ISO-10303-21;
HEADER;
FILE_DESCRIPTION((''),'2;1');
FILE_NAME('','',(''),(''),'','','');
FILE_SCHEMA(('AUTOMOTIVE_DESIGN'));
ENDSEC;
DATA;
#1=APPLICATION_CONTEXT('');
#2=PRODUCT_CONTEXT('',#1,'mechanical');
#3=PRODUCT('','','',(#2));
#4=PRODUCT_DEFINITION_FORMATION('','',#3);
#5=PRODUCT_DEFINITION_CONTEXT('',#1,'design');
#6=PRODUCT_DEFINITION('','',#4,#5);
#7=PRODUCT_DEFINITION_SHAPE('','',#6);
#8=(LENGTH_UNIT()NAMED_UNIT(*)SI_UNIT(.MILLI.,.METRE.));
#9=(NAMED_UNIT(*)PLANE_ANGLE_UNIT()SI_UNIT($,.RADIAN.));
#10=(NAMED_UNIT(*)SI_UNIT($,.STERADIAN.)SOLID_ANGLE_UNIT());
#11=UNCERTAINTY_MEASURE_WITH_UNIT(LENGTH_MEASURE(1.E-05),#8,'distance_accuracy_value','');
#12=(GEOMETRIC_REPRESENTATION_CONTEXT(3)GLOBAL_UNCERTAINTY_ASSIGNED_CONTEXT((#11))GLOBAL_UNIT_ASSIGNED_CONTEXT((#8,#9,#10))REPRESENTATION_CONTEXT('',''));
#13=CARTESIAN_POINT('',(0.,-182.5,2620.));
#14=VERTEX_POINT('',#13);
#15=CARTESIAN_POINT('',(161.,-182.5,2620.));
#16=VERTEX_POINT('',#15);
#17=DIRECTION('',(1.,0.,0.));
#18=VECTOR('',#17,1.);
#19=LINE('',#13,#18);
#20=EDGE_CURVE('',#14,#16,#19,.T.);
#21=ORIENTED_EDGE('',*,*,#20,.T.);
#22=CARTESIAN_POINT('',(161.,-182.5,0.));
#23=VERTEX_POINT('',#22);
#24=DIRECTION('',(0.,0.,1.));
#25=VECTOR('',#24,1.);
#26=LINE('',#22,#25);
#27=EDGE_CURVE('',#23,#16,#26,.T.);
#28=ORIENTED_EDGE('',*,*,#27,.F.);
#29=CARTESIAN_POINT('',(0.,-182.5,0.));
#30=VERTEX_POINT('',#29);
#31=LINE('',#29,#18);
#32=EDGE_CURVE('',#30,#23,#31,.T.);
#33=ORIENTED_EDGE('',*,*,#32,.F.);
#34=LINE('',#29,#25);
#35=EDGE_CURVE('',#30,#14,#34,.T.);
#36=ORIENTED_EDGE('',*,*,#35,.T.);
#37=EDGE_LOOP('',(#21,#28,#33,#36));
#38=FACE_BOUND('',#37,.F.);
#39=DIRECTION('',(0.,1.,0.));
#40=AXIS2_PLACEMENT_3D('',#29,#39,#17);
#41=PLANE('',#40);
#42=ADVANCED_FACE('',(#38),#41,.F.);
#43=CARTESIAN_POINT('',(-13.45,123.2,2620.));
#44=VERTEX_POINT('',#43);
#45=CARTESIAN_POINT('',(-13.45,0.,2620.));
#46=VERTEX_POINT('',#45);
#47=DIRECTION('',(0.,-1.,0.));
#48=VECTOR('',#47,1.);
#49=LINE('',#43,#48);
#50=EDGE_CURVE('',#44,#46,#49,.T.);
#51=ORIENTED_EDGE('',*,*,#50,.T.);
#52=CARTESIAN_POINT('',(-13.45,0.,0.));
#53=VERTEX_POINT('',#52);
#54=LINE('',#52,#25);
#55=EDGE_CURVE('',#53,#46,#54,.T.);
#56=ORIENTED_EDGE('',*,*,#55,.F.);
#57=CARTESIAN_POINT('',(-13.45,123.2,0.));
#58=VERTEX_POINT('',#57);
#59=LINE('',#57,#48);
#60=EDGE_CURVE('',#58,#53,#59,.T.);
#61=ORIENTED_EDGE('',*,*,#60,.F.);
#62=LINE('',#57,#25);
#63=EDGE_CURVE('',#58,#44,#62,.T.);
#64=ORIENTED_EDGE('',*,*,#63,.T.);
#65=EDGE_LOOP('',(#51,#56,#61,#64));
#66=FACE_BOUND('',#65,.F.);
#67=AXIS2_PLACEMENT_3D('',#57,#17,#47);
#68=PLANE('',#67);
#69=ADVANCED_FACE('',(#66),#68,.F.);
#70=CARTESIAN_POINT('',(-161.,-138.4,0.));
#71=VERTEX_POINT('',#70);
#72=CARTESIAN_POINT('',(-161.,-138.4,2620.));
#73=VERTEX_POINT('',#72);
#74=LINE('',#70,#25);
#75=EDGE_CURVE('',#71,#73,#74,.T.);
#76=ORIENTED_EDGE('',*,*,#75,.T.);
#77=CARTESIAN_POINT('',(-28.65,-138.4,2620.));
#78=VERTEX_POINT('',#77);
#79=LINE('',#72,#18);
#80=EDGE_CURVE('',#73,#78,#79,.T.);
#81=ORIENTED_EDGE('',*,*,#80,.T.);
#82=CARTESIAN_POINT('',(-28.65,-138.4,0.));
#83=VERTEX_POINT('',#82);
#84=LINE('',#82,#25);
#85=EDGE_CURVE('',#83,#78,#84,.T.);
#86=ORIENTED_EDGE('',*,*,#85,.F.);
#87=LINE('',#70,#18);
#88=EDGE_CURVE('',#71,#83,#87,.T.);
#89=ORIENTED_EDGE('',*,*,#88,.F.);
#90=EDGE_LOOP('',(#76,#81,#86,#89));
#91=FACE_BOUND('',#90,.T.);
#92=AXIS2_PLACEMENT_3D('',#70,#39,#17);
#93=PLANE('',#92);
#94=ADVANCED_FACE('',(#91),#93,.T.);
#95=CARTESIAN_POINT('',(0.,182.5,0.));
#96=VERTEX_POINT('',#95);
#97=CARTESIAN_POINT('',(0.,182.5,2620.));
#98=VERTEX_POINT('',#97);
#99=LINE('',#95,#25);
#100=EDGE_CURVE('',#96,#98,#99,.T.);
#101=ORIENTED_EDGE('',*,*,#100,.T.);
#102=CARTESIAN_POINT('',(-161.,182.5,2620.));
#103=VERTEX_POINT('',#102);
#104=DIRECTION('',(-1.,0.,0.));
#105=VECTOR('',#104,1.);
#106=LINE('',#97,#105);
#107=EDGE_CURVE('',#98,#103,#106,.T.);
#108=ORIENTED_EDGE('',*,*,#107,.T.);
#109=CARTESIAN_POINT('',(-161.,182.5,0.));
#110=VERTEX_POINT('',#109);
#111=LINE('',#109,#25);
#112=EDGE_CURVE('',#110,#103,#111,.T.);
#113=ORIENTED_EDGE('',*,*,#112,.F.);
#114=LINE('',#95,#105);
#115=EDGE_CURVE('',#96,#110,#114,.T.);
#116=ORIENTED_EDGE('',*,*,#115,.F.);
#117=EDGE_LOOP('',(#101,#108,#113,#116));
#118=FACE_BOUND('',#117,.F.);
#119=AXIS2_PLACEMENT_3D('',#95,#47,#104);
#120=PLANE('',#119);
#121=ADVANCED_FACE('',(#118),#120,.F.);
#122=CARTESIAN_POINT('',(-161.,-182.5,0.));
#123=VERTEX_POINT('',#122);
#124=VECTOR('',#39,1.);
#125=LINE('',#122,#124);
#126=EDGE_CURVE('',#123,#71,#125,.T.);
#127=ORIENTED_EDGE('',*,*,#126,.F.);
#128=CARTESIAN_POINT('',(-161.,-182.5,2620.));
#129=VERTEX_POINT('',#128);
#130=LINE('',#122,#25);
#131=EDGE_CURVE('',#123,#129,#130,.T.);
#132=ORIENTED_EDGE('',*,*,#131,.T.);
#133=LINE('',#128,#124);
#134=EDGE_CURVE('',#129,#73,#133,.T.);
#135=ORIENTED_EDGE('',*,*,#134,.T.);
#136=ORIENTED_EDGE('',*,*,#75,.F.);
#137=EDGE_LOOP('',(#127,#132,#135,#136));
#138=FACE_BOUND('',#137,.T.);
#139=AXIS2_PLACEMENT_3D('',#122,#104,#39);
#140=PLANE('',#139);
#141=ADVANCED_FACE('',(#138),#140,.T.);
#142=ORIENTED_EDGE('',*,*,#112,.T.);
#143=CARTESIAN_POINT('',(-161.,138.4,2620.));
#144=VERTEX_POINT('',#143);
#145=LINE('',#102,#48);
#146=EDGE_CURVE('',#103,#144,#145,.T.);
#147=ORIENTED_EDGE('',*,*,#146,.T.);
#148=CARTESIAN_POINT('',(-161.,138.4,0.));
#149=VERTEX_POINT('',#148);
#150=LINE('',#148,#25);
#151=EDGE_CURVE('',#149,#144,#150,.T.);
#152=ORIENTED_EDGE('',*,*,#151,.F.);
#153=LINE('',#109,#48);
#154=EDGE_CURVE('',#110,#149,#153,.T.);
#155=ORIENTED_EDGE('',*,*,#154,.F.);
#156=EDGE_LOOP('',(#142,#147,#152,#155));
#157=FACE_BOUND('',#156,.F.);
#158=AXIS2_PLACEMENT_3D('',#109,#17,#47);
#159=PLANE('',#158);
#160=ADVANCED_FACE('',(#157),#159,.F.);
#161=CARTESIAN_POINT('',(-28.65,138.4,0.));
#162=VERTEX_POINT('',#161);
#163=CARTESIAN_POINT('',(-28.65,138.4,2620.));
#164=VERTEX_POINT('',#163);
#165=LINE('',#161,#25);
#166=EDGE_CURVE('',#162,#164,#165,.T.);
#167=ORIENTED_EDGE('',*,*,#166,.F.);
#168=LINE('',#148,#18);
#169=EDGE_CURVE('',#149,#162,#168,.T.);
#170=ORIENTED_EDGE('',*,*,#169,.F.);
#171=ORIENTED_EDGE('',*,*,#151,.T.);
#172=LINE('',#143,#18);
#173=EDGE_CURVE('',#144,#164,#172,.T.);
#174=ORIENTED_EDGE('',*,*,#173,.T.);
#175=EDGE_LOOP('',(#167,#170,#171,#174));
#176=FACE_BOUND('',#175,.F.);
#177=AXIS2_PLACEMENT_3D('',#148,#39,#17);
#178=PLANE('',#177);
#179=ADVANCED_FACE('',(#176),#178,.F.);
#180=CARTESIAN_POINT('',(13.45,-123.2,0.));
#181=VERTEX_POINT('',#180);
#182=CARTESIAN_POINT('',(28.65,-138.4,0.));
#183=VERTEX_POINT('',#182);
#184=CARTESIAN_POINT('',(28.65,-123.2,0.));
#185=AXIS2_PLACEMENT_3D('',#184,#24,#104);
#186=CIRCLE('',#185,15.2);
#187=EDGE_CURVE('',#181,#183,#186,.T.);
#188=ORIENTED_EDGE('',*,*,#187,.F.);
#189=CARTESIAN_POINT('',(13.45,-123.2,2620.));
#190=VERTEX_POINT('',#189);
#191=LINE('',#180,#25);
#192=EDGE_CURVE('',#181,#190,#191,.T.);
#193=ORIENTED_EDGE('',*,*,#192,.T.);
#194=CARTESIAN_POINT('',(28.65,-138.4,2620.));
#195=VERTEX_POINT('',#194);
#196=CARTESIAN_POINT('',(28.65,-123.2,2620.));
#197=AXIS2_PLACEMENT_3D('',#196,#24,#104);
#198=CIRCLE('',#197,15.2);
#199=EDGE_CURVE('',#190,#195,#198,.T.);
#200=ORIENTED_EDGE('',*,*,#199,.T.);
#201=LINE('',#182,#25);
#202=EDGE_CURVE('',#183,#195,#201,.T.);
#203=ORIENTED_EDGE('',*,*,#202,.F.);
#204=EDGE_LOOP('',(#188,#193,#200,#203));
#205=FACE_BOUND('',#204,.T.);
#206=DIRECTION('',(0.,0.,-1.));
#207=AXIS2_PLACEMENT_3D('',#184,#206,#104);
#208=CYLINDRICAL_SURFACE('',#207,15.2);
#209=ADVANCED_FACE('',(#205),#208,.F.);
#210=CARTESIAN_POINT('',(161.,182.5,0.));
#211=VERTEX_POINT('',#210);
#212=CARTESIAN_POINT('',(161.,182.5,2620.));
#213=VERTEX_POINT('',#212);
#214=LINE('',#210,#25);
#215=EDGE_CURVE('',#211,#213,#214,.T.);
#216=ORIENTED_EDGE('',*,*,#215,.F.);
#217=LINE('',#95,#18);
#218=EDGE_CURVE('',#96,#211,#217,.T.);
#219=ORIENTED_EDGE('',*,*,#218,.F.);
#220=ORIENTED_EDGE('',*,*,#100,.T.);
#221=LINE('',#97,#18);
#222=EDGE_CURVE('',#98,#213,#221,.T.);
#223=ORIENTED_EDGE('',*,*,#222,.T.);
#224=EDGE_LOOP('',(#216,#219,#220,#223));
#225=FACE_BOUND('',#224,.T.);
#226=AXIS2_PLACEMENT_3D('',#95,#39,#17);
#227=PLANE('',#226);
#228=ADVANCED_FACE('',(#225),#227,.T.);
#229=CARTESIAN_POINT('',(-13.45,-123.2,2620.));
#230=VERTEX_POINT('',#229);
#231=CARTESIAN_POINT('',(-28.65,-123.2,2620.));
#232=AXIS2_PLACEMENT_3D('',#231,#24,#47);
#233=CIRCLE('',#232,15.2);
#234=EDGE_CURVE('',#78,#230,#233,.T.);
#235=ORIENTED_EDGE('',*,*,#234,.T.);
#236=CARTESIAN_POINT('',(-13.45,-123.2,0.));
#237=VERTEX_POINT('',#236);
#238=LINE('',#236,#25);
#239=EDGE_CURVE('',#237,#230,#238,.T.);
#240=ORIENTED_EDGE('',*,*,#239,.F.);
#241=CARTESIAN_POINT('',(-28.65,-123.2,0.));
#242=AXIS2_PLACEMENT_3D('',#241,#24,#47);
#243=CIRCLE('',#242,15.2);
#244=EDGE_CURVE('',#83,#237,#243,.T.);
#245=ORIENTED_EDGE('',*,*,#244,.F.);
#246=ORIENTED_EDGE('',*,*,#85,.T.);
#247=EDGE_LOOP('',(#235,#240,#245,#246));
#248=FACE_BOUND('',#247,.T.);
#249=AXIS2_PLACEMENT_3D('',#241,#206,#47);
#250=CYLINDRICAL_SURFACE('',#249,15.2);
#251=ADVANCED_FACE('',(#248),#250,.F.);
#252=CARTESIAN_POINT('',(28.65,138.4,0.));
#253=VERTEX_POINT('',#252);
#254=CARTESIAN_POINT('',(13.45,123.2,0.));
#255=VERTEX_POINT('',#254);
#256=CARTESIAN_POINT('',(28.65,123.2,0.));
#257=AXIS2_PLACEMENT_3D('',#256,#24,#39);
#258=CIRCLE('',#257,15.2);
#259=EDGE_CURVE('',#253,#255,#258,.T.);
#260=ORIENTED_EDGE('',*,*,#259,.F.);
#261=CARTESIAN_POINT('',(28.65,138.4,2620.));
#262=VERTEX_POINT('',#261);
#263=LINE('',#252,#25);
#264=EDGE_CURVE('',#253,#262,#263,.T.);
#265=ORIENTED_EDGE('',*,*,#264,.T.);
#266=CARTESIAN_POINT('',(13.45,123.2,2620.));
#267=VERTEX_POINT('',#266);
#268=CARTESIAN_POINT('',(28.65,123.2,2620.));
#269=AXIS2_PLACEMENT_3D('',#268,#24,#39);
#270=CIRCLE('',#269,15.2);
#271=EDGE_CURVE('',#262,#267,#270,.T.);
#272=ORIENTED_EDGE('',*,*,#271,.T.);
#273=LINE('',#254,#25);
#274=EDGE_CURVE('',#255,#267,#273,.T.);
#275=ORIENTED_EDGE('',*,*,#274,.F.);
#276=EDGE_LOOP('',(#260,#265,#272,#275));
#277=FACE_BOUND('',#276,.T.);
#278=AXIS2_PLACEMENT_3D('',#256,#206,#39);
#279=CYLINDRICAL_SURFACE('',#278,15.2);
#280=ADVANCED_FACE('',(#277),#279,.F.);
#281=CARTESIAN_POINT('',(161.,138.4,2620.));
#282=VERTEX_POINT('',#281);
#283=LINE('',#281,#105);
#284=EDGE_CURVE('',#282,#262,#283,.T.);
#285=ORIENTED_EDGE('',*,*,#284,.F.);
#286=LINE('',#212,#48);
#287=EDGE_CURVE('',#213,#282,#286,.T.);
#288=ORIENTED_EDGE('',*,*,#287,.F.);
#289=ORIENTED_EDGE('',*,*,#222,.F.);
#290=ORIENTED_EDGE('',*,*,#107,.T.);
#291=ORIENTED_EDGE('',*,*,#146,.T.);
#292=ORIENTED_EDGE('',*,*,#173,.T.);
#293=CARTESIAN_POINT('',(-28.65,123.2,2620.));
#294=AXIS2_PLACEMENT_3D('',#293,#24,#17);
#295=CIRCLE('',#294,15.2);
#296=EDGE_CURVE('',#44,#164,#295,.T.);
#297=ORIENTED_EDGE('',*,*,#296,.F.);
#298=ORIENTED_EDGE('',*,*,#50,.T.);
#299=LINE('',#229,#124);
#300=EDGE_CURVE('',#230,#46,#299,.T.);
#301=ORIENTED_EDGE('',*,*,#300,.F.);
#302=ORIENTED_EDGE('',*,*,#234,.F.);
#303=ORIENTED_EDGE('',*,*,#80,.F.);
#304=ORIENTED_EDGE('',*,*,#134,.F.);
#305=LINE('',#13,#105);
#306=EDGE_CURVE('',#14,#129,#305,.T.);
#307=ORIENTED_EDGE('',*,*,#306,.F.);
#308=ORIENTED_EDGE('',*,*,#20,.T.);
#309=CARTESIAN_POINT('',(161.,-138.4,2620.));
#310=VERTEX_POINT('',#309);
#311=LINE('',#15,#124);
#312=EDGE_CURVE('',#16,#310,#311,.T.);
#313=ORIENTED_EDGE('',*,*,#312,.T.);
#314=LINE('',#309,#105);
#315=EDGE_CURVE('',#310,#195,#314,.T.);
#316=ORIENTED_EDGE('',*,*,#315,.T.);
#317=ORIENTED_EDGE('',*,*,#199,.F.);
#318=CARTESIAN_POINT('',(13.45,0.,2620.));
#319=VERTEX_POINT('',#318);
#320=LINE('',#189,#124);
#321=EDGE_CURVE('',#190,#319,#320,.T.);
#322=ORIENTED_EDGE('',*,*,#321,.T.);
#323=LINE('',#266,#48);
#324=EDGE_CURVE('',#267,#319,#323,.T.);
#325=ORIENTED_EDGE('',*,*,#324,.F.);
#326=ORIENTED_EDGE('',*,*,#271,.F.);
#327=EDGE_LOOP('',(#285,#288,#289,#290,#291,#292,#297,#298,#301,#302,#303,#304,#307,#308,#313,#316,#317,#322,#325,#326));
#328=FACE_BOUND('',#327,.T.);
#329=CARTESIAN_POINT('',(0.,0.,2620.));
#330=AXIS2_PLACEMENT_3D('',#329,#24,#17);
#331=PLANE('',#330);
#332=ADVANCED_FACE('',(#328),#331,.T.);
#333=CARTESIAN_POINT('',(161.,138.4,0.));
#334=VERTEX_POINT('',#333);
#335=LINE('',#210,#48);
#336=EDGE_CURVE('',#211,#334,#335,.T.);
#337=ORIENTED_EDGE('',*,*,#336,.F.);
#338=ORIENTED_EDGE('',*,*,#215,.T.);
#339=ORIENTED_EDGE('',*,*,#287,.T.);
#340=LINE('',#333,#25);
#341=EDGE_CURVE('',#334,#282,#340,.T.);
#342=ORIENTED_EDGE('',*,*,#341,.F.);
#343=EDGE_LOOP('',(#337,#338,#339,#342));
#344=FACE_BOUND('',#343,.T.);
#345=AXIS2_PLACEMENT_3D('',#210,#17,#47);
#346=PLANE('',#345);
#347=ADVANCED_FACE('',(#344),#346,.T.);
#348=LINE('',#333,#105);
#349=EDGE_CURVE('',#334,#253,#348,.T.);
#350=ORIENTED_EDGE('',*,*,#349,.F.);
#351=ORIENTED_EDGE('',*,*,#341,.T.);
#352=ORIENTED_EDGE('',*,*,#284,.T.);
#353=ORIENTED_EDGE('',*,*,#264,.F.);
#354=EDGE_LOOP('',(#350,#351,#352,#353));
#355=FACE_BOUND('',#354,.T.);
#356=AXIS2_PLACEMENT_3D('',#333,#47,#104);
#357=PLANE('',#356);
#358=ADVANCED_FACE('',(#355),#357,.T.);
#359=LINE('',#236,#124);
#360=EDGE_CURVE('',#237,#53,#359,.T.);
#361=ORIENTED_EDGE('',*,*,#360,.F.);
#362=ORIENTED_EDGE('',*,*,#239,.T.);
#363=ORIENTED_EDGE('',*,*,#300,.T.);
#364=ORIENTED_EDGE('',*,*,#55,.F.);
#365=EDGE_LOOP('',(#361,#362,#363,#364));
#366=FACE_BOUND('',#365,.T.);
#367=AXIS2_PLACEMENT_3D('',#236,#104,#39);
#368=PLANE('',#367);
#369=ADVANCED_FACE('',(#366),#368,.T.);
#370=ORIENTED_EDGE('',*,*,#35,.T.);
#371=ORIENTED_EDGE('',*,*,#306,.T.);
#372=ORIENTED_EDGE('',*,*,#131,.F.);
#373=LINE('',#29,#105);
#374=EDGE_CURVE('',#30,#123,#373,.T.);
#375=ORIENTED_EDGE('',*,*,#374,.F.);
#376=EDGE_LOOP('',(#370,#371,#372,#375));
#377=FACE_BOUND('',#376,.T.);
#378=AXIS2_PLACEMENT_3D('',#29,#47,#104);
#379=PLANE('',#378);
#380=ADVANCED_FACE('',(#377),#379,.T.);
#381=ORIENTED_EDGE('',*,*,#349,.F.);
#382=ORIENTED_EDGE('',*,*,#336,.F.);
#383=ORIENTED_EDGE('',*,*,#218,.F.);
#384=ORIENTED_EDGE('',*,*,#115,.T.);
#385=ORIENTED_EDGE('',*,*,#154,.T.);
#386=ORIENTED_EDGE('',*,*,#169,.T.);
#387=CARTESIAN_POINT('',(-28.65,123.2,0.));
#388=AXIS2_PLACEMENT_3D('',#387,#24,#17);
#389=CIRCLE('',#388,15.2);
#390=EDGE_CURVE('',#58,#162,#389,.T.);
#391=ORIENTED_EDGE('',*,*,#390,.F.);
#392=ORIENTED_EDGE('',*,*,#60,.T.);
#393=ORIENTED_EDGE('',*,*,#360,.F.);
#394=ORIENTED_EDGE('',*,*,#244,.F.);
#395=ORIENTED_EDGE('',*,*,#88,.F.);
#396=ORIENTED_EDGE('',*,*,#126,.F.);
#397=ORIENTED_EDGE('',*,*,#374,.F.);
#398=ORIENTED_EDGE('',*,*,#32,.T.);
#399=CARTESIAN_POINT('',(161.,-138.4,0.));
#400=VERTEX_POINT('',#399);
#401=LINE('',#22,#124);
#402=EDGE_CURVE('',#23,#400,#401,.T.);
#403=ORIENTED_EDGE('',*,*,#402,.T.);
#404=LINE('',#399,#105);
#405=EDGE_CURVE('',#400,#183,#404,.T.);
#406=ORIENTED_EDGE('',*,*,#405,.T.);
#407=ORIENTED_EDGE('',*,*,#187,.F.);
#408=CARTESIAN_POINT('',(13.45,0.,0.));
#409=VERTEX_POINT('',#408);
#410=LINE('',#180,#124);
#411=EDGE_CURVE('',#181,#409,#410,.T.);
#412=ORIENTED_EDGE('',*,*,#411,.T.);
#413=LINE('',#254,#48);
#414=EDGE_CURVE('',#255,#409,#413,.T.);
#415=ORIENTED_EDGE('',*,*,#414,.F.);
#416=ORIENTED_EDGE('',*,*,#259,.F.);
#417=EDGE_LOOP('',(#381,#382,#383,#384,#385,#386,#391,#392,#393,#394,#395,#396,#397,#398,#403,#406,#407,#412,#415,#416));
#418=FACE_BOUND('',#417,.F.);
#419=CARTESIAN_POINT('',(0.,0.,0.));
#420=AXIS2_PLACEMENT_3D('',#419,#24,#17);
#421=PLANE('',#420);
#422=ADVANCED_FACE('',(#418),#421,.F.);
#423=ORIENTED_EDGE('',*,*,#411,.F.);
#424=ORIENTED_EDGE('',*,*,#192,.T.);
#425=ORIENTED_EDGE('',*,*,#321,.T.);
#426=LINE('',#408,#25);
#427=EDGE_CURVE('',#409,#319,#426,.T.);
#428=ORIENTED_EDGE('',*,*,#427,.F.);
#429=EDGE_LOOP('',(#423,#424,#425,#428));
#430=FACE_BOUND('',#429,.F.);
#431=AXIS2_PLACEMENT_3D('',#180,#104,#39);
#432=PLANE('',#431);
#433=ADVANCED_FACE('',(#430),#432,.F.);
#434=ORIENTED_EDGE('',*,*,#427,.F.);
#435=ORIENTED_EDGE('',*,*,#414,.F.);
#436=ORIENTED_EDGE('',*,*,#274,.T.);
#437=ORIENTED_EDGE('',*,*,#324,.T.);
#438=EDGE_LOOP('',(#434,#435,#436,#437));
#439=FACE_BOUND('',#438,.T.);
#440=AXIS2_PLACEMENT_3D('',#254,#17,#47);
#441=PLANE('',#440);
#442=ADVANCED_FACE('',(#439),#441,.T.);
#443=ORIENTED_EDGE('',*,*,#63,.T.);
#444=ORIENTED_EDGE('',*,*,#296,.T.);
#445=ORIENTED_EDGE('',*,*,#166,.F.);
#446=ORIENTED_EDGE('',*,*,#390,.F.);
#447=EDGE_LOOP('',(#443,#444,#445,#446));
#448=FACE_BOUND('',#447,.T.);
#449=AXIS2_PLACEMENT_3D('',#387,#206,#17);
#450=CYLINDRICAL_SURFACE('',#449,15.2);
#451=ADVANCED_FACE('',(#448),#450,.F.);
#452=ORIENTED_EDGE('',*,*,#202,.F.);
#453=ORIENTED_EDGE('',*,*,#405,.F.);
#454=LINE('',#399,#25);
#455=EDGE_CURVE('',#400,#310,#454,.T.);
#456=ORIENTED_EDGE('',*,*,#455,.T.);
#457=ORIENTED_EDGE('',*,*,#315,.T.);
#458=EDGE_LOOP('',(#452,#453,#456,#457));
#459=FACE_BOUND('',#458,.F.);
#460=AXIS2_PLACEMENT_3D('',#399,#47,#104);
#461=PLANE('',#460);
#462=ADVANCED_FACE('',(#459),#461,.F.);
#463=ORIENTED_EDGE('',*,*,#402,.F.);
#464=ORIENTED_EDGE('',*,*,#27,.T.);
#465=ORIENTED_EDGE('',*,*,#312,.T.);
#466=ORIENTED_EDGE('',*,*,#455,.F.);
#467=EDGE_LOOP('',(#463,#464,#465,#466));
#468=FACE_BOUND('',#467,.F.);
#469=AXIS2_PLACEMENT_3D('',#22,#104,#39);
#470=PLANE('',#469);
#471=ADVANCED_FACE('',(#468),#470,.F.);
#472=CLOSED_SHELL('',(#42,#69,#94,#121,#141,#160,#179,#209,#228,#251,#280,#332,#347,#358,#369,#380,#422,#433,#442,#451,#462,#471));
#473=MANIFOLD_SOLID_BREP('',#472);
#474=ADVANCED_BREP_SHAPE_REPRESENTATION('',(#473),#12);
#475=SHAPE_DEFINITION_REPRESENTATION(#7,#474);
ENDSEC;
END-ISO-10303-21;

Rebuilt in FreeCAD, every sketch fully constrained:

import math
import FreeCAD as App
import Part
import Sketcher
from FreeCAD import Vector

doc = App.newDocument("Part")
params = doc.addObject("Spreadsheet::Sheet", "Params")
for row, (alias, value) in enumerate([
    ("sketch1_radius", "15.2 mm"),
    ("sketch1_height", "44.1 mm"),
    ("pad1_length", "2620 mm"),
], start=1):
    params.set(f"A{row}", alias)
    params.set(f"B{row}", "=" + value)
    params.setAlias(f"B{row}", alias)

body = doc.addObject("PartDesign::Body", "Body")

# Sketch on XY plane
sketch1 = body.newObject("Sketcher::SketchObject", "Sketch")
sketch1.AttachmentSupport = (doc.getObject("XY_Plane"), [""])
sketch1.MapMode = "FlatFace"
sketch1.addGeometry(Part.LineSegment(Vector(-161, -138, 0), Vector(-161, -182, 0)), False)
sketch1.addGeometry(Part.LineSegment(Vector(-161, -182, 0), Vector(161, -182, 0)), False)
sketch1.addGeometry(Part.LineSegment(Vector(161, -182, 0), Vector(161, -138, 0)), False)
sketch1.addGeometry(Part.LineSegment(Vector(161, -138, 0), Vector(29, -138, 0)), False)
sketch1.addGeometry(Part.ArcOfCircle(Part.Circle(Vector(29, -123, 0), Vector(0, 0, 1), 15), math.radians(180), math.radians(270)), False)
sketch1.addGeometry(Part.LineSegment(Vector(13, -123, 0), Vector(13, 123, 0)), False)
sketch1.addGeometry(Part.ArcOfCircle(Part.Circle(Vector(29, 123, 0), Vector(0, 0, 1), 15), math.radians(90), math.radians(180)), False)
sketch1.addGeometry(Part.LineSegment(Vector(29, 138, 0), Vector(161, 138, 0)), False)
sketch1.addGeometry(Part.LineSegment(Vector(161, 138, 0), Vector(161, 182, 0)), False)
sketch1.addGeometry(Part.LineSegment(Vector(161, 182, 0), Vector(-161, 182, 0)), False)
sketch1.addGeometry(Part.LineSegment(Vector(-161, 182, 0), Vector(-161, 138, 0)), False)
sketch1.addGeometry(Part.LineSegment(Vector(-161, 138, 0), Vector(-29, 138, 0)), False)
sketch1.addGeometry(Part.ArcOfCircle(Part.Circle(Vector(-29, 123, 0), Vector(0, 0, 1), 15), math.radians(0), math.radians(90)), False)
sketch1.addGeometry(Part.LineSegment(Vector(-13, 123, 0), Vector(-13, -123, 0)), False)
sketch1.addGeometry(Part.ArcOfCircle(Part.Circle(Vector(-29, -123, 0), Vector(0, 0, 1), 15), math.radians(-90), math.radians(0)), False)
sketch1.addGeometry(Part.LineSegment(Vector(-29, -138, 0), Vector(-161, -138, 0)), False)
sketch1.addConstraint(Sketcher.Constraint("Coincident", 0, 2, 1, 1))
sketch1.addConstraint(Sketcher.Constraint("Coincident", 1, 2, 2, 1))
sketch1.addConstraint(Sketcher.Constraint("Coincident", 2, 2, 3, 1))
sketch1.addConstraint(Sketcher.Constraint("Tangent", 3, 2, 4, 2))
sketch1.addConstraint(Sketcher.Constraint("Tangent", 4, 1, 5, 1))
sketch1.addConstraint(Sketcher.Constraint("Tangent", 5, 2, 6, 2))
sketch1.addConstraint(Sketcher.Constraint("Tangent", 6, 1, 7, 1))
sketch1.addConstraint(Sketcher.Constraint("Coincident", 7, 2, 8, 1))
sketch1.addConstraint(Sketcher.Constraint("Coincident", 8, 2, 9, 1))
sketch1.addConstraint(Sketcher.Constraint("Coincident", 9, 2, 10, 1))
sketch1.addConstraint(Sketcher.Constraint("Coincident", 10, 2, 11, 1))
sketch1.addConstraint(Sketcher.Constraint("Tangent", 11, 2, 12, 2))
sketch1.addConstraint(Sketcher.Constraint("Tangent", 12, 1, 13, 1))
sketch1.addConstraint(Sketcher.Constraint("Tangent", 13, 2, 14, 2))
sketch1.addConstraint(Sketcher.Constraint("Tangent", 14, 1, 15, 1))
sketch1.addConstraint(Sketcher.Constraint("Coincident", 15, 2, 0, 1))
sketch1.addConstraint(Sketcher.Constraint("Vertical", 0))
sketch1.addConstraint(Sketcher.Constraint("Horizontal", 1))
sketch1.addConstraint(Sketcher.Constraint("Vertical", 2))
sketch1.addConstraint(Sketcher.Constraint("Horizontal", 3))
sketch1.addConstraint(Sketcher.Constraint("Vertical", 5))
sketch1.addConstraint(Sketcher.Constraint("Horizontal", 7))
sketch1.addConstraint(Sketcher.Constraint("Vertical", 8))
sketch1.addConstraint(Sketcher.Constraint("Horizontal", 9))
sketch1.addConstraint(Sketcher.Constraint("Vertical", 10))
sketch1.addConstraint(Sketcher.Constraint("Horizontal", 11))
sketch1.addConstraint(Sketcher.Constraint("Vertical", 13))
sketch1.addConstraint(Sketcher.Constraint("Horizontal", 15))
sketch1.addConstraint(Sketcher.Constraint("Equal", 4, 6))
sketch1.addConstraint(Sketcher.Constraint("Equal", 6, 12))
sketch1.addConstraint(Sketcher.Constraint("Equal", 12, 14))
sketch1.addConstraint(Sketcher.Constraint("Symmetric", 4, 3, 12, 3, -1, 1))
sketch1.addConstraint(Sketcher.Constraint("Symmetric", 0, 2, 8, 2, -1, 1))
sketch1.addConstraint(Sketcher.Constraint("Symmetric", 7, 2, 10, 2, -2))
sketch1.addConstraint(Sketcher.Constraint("Symmetric", 2, 2, 15, 2, -2))
sketch1.addConstraint(Sketcher.Constraint("Radius", 4, 15.2))
sketch1.addConstraint(Sketcher.Constraint("DistanceY", 0, 2, 0, 1, 44.1))
sketch1.addConstraint(Sketcher.Constraint("DistanceX", 0, 2, -1, 1, 161.0))
sketch1.addConstraint(Sketcher.Constraint("DistanceY", 0, 2, -1, 1, 182.5))
sketch1.addConstraint(Sketcher.Constraint("DistanceX", -1, 1, 4, 1, 13.45))
sketch1.setExpression("Constraints[35]", "Params.sketch1_radius")
sketch1.setExpression("Constraints[36]", "Params.sketch1_height")
pad1 = body.newObject("PartDesign::Pad", "Pad")
pad1.Profile = sketch1
pad1.setExpression("Length", "Params.pad1_length")

doc.recompute()
